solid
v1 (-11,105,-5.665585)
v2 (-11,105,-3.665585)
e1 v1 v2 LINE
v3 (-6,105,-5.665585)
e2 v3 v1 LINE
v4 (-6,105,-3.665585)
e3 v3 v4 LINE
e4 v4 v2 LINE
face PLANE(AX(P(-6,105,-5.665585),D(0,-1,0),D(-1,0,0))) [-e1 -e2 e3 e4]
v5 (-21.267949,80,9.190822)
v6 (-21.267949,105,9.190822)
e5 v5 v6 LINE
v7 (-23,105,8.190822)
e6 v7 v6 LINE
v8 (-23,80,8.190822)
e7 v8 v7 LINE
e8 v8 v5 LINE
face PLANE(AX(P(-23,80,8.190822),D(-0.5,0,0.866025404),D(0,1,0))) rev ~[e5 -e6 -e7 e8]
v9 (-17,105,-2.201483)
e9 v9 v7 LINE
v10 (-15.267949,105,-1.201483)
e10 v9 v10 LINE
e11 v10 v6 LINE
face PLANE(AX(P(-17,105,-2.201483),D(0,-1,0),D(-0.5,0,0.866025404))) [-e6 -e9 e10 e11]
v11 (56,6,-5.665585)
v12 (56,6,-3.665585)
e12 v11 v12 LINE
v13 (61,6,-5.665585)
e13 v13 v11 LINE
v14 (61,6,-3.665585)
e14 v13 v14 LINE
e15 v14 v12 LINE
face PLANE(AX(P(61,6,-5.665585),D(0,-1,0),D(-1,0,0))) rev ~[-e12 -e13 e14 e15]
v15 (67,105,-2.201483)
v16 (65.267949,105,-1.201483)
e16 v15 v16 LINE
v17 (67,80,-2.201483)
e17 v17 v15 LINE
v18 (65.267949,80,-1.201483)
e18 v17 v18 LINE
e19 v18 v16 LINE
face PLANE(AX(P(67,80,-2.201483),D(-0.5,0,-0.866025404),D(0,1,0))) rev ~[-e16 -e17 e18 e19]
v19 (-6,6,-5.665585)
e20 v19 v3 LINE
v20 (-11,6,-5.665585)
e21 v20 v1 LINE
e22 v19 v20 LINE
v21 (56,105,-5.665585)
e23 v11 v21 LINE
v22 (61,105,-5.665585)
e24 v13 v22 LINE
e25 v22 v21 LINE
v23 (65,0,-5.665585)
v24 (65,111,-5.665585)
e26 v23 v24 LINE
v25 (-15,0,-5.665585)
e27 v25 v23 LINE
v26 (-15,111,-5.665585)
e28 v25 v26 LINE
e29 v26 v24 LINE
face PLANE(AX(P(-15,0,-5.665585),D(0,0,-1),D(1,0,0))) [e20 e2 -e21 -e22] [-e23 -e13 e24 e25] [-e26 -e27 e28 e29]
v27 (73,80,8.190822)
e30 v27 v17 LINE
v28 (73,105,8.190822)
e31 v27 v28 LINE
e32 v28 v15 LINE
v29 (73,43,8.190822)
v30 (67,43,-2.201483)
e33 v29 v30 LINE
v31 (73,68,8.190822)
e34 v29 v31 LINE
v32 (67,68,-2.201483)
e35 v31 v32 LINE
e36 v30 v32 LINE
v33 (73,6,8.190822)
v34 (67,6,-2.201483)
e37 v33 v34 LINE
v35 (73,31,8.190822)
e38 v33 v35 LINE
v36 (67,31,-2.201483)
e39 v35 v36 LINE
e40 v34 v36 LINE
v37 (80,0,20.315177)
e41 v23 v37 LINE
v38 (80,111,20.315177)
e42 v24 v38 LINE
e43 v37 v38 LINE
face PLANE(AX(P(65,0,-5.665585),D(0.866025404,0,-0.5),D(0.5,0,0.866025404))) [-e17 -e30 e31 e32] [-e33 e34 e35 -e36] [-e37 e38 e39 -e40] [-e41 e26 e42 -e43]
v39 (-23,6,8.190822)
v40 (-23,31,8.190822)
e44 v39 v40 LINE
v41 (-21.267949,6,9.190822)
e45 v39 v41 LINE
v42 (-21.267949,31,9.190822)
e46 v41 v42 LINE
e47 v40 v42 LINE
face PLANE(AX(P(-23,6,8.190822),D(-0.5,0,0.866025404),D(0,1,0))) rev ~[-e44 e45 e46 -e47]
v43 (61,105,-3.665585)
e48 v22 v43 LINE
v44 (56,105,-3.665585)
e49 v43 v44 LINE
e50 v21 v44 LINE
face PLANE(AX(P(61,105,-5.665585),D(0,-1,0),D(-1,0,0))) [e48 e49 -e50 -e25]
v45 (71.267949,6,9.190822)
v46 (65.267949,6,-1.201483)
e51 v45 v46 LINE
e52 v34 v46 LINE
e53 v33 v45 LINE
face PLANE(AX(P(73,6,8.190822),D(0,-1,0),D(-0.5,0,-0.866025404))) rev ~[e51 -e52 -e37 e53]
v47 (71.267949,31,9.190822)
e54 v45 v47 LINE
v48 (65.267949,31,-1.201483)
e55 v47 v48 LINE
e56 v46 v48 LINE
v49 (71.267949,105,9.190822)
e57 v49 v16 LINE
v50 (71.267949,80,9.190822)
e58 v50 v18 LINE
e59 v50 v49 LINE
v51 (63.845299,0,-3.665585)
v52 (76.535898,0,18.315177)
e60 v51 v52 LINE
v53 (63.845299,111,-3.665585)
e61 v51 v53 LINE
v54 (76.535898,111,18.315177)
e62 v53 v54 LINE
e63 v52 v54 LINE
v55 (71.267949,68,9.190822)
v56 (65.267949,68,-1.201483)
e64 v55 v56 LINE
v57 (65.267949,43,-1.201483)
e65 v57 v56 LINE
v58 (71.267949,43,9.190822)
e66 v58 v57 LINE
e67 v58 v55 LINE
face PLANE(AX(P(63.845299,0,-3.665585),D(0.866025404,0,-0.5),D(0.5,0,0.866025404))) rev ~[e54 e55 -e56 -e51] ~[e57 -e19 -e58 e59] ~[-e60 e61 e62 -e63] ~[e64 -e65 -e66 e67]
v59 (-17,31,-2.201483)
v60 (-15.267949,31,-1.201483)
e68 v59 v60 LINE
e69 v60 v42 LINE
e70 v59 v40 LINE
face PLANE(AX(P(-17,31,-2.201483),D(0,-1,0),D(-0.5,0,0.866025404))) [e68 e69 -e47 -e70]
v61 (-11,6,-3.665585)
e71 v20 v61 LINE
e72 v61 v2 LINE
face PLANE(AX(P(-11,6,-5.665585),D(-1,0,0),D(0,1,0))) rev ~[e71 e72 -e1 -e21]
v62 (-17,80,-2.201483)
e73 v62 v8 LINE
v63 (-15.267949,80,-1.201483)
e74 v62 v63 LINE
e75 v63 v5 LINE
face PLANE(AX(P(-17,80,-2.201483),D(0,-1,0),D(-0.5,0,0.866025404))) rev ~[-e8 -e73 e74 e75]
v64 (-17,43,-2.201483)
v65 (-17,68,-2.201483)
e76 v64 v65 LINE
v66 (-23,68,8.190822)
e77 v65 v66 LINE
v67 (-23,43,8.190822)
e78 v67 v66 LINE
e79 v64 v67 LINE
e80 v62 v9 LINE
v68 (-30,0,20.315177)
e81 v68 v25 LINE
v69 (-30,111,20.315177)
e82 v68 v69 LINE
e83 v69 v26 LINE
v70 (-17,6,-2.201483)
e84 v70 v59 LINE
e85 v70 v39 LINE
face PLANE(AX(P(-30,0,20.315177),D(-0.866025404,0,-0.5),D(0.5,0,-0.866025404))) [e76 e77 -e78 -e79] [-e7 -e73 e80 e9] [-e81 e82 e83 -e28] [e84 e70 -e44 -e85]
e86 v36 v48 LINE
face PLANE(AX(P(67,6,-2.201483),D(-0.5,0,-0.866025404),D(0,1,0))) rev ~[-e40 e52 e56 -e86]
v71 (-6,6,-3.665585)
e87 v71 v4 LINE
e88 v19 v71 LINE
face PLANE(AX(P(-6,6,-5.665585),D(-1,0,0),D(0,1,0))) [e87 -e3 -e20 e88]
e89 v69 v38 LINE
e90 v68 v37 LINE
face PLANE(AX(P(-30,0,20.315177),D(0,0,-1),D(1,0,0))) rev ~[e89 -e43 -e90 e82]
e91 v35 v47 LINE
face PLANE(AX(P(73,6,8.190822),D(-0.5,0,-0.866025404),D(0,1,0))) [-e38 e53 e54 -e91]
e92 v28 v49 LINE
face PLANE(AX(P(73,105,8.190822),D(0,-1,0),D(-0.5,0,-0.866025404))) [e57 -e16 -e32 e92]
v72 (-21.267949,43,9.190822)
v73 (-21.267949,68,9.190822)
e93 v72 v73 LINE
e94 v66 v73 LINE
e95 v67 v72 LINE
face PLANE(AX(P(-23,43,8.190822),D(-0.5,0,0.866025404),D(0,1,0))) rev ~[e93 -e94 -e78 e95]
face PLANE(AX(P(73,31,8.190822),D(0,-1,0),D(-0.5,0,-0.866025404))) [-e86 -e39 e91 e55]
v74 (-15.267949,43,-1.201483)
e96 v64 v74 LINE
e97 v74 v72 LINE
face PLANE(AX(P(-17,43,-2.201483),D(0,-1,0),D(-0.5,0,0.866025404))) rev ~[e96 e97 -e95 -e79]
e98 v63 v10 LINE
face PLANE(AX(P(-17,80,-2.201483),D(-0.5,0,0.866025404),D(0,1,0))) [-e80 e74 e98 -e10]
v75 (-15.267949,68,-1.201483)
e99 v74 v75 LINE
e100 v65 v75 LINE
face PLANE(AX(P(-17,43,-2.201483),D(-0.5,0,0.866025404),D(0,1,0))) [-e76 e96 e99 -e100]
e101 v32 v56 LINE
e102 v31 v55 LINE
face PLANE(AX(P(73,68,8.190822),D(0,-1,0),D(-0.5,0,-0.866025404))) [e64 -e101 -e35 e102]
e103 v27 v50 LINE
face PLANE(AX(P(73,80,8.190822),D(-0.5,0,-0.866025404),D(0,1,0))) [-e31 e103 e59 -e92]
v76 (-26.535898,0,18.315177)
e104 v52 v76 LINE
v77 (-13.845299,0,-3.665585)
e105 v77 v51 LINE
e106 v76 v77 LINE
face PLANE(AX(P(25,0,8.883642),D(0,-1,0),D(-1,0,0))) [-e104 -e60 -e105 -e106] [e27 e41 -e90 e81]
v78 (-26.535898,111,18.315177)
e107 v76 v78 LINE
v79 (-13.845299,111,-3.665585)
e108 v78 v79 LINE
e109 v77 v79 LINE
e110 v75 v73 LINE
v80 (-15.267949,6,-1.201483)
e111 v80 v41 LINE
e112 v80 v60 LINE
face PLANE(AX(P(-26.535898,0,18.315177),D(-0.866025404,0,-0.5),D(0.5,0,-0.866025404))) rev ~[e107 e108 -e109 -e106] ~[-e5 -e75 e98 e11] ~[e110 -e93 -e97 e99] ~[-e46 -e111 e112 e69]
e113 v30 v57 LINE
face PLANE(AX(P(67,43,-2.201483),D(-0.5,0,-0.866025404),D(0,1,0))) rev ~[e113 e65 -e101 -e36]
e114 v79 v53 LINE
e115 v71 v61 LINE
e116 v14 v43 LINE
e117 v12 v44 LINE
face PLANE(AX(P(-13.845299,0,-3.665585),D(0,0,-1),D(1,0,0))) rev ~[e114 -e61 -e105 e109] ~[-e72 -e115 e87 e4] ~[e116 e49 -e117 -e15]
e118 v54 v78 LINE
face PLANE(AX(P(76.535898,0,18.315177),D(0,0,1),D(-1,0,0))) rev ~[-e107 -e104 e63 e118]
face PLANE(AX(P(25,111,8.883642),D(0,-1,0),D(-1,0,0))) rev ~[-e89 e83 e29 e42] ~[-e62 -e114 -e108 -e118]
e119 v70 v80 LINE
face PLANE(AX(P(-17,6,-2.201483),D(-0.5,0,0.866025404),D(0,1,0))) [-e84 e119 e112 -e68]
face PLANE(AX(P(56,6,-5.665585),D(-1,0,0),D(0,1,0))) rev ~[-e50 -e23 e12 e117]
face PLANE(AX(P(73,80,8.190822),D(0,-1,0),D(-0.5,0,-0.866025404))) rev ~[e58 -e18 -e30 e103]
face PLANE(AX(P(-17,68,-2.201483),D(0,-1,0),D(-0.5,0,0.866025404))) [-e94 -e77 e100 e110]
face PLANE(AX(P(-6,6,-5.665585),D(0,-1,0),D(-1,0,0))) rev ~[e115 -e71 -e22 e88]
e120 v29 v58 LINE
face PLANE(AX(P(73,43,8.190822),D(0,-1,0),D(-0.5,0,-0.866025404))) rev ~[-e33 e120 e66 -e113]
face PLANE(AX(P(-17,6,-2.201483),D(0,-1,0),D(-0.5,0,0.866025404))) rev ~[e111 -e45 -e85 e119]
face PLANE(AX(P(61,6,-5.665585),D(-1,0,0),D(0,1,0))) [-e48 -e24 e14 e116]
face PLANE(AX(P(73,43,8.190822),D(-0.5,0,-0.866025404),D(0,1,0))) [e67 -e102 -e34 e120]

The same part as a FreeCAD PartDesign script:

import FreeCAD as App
import Part
import Sketcher

V = App.Vector
Q = App.Units.Quantity

doc = App.newDocument("Part")
body = doc.addObject("PartDesign::Body", "Body")

sketch1 = body.newObject("Sketcher::SketchObject", "Sketch")
sketch1.AttachmentSupport = (doc.getObject("XZ_Plane"), [""])
sketch1.MapMode = "FlatFace"
sketch1.addGeometry(Part.LineSegment(V(65, -6, 0), V(-15, -6, 0)), False)
sketch1.addGeometry(Part.LineSegment(V(-15, -6, 0), V(-30, 20, 0)), False)
sketch1.addGeometry(Part.LineSegment(V(-30, 20, 0), V(80, 20, 0)), False)
sketch1.addGeometry(Part.LineSegment(V(80, 20, 0), V(65, -6, 0)), False)
sketch1.addGeometry(Part.LineSegment(V(-14, -4, 0), V(64, -4, 0)), False)
sketch1.addGeometry(Part.LineSegment(V(64, -4, 0), V(77, 18, 0)), False)
sketch1.addGeometry(Part.LineSegment(V(77, 18, 0), V(-27, 18, 0)), False)
sketch1.addGeometry(Part.LineSegment(V(-27, 18, 0), V(-14, -4, 0)), False)
sketch1.addConstraint(Sketcher.Constraint("Coincident", 0, 2, 1, 1))
sketch1.addConstraint(Sketcher.Constraint("Coincident", 1, 2, 2, 1))
sketch1.addConstraint(Sketcher.Constraint("Coincident", 2, 2, 3, 1))
sketch1.addConstraint(Sketcher.Constraint("Coincident", 3, 2, 0, 1))
sketch1.addConstraint(Sketcher.Constraint("Coincident", 4, 2, 5, 1))
sketch1.addConstraint(Sketcher.Constraint("Coincident", 5, 2, 6, 1))
sketch1.addConstraint(Sketcher.Constraint("Coincident", 6, 2, 7, 1))
sketch1.addConstraint(Sketcher.Constraint("Coincident", 7, 2, 4, 1))
sketch1.addConstraint(Sketcher.Constraint("Horizontal", 0))
sketch1.addConstraint(Sketcher.Constraint("Horizontal", 2))
sketch1.addConstraint(Sketcher.Constraint("Horizontal", 4))
sketch1.addConstraint(Sketcher.Constraint("Horizontal", 6))
sketch1.addConstraint(Sketcher.Constraint("Parallel", 3, 5))
sketch1.addConstraint(Sketcher.Constraint("Parallel", 1, 7))
sketch1.addConstraint(Sketcher.Constraint("Equal", 1, 3))
sketch1.addConstraint(Sketcher.Constraint("DistanceX", 0, 2, 0, 1, 80.0))
sketch1.addConstraint(Sketcher.Constraint("DistanceX", 2, 1, 2, 2, 110.0))
sketch1.addConstraint(Sketcher.Constraint("Angle", 1, Q("120 deg")))
sketch1.addConstraint(Sketcher.Constraint("DistanceX", 0, 2, -1, 1, 15.0))
sketch1.addConstraint(Sketcher.Constraint("DistanceY", 3, 2, 4, 2, 2.0))
sketch1.addConstraint(Sketcher.Constraint("DistanceY", 5, 2, 2, 2, 2.0))
sketch1.addConstraint(Sketcher.Constraint("DistanceX", 4, 1, 4, 2, 77.690599))
sketch1.addConstraint(Sketcher.Constraint("DistanceX", -1, 1, 4, 2, 63.845299))
sketch1.addConstraint(Sketcher.Constraint("DistanceY", 0, 2, -1, 1, 5.665585))
pad1 = body.newObject("PartDesign::Pad", "Pad")
pad1.Profile = sketch1
pad1.Length = 111
pad1.Reversed = True

sketch2 = body.newObject("Sketcher::SketchObject", "Sketch001")
sketch2.Placement = App.Placement(V(51.20327, 0, -29.562222), App.Rotation(V(-0.5, 0, -0.866025404), V(0, 1, 0), V(0.866025404, 0, -0.5), "ZXY"))
sketch2.addGeometry(Part.LineSegment(V(-44, 105, 0), V(-44, 80, 0)), False)
sketch2.addGeometry(Part.LineSegment(V(-44, 80, 0), V(-32, 80, 0)), False)
sketch2.addGeometry(Part.LineSegment(V(-32, 80, 0), V(-32, 105, 0)), False)
sketch2.addGeometry(Part.LineSegment(V(-32, 105, 0), V(-44, 105, 0)), False)
sketch2.addGeometry(Part.LineSegment(V(-44, 68, 0), V(-44, 43, 0)), False)
sketch2.addGeometry(Part.LineSegment(V(-44, 43, 0), V(-32, 43, 0)), False)
sketch2.addGeometry(Part.LineSegment(V(-32, 43, 0), V(-32, 68, 0)), False)
sketch2.addGeometry(Part.LineSegment(V(-32, 68, 0), V(-44, 68, 0)), False)
sketch2.addGeometry(Part.LineSegment(V(-44, 31, 0), V(-44, 6, 0)), False)
sketch2.addGeometry(Part.LineSegment(V(-44, 6, 0), V(-32, 6, 0)), False)
sketch2.addGeometry(Part.LineSegment(V(-32, 6, 0), V(-32, 31, 0)), False)
sketch2.addGeometry(Part.LineSegment(V(-32, 31, 0), V(-44, 31, 0)), False)
sketch2.addConstraint(Sketcher.Constraint("Coincident", 0, 2, 1, 1))
sketch2.addConstraint(Sketcher.Constraint("Coincident", 1, 2, 2, 1))
sketch2.addConstraint(Sketcher.Constraint("Coincident", 2, 2, 3, 1))
sketch2.addConstraint(Sketcher.Constraint("Coincident", 3, 2, 0, 1))
sketch2.addConstraint(Sketcher.Constraint("Coincident", 4, 2, 5, 1))
sketch2.addConstraint(Sketcher.Constraint("Coincident", 5, 2, 6, 1))
sketch2.addConstraint(Sketcher.Constraint("Coincident", 6, 2, 7, 1))
sketch2.addConstraint(Sketcher.Constraint("Coincident", 7, 2, 4, 1))
sketch2.addConstraint(Sketcher.Constraint("Coincident", 8, 2, 9, 1))
sketch2.addConstraint(Sketcher.Constraint("Coincident", 9, 2, 10, 1))
sketch2.addConstraint(Sketcher.Constraint("Coincident", 10, 2, 11, 1))
sketch2.addConstraint(Sketcher.Constraint("Coincident", 11, 2, 8, 1))
sketch2.addConstraint(Sketcher.Constraint("Vertical", 0))
sketch2.addConstraint(Sketcher.Constraint("Horizontal", 1))
sketch2.addConstraint(Sketcher.Constraint("Vertical", 2))
sketch2.addConstraint(Sketcher.Constraint("Horizontal", 3))
sketch2.addConstraint(Sketcher.Constraint("Vertical", 4))
sketch2.addConstraint(Sketcher.Constraint("Horizontal", 5))
sketch2.addConstraint(Sketcher.Constraint("Vertical", 6))
sketch2.addConstraint(Sketcher.Constraint("Horizontal", 7))
sketch2.addConstraint(Sketcher.Constraint("Vertical", 8))
sketch2.addConstraint(Sketcher.Constraint("Horizontal", 9))
sketch2.addConstraint(Sketcher.Constraint("Vertical", 10))
sketch2.addConstraint(Sketcher.Constraint("Horizontal", 11))
sketch2.addConstraint(Sketcher.Constraint("Vertical", 3, 2, 4, 2))
sketch2.addConstraint(Sketcher.Constraint("Vertical", 2, 2, 5, 2))
sketch2.addConstraint(Sketcher.Constraint("Vertical", 7, 2, 8, 2))
sketch2.addConstraint(Sketcher.Constraint("Vertical", 6, 2, 9, 2))
sketch2.addConstraint(Sketcher.Constraint("Equal", 2, 4))
sketch2.addConstraint(Sketcher.Constraint("Equal", 6, 8))
sketch2.addConstraint(Sketcher.Constraint("DistanceX", 1, 1, 1, 2, 12.0))
sketch2.addConstraint(Sketcher.Constraint("DistanceY", 0, 2, 0, 1, 25.0))
sketch2.addConstraint(Sketcher.Constraint("DistanceY", -1, 1, 0, 2, 80.0))
sketch2.addConstraint(Sketcher.Constraint("DistanceY", -1, 1, 4, 2, 43.0))
sketch2.addConstraint(Sketcher.Constraint("DistanceY", -1, 1, 8, 2, 6.0))
sketch2.addConstraint(Sketcher.Constraint("DistanceX", 0, 2, -1, 1, 43.59346))
pocket1 = body.newObject("PartDesign::Pocket", "Pocket")
pocket1.Profile = sketch2
pocket1.Length = 2

sketch3 = body.newObject("Sketcher::SketchObject", "Sketch002")
sketch3.Placement = App.Placement(V(-13.70327, 0, -7.911587), App.Rotation(V(-0.5, 0, 0.866025404), V(0, 1, 0), V(-0.866025404, 0, -0.5), "ZXY"))
sketch3.addGeometry(Part.LineSegment(V(7, 105, 0), V(7, 80, 0)), False)
sketch3.addGeometry(Part.LineSegment(V(7, 80, 0), V(19, 80, 0)), False)
sketch3.addGeometry(Part.LineSegment(V(19, 80, 0), V(19, 105, 0)), False)
sketch3.addGeometry(Part.LineSegment(V(19, 105, 0), V(7, 105, 0)), False)
sketch3.addGeometry(Part.LineSegment(V(7, 68, 0), V(7, 43, 0)), False)
sketch3.addGeometry(Part.LineSegment(V(7, 43, 0), V(19, 43, 0)), False)
sketch3.addGeometry(Part.LineSegment(V(19, 43, 0), V(19, 68, 0)), False)
sketch3.addGeometry(Part.LineSegment(V(19, 68, 0), V(7, 68, 0)), False)
sketch3.addGeometry(Part.LineSegment(V(7, 31, 0), V(7, 6, 0)), False)
sketch3.addGeometry(Part.LineSegment(V(7, 6, 0), V(19, 6, 0)), False)
sketch3.addGeometry(Part.LineSegment(V(19, 6, 0), V(19, 31, 0)), False)
sketch3.addGeometry(Part.LineSegment(V(19, 31, 0), V(7, 31, 0)), False)
sketch3.addConstraint(Sketcher.Constraint("Coincident", 0, 2, 1, 1))
sketch3.addConstraint(Sketcher.Constraint("Coincident", 1, 2, 2, 1))
sketch3.addConstraint(Sketcher.Constraint("Coincident", 2, 2, 3, 1))
sketch3.addConstraint(Sketcher.Constraint("Coincident", 3, 2, 0, 1))
sketch3.addConstraint(Sketcher.Constraint("Coincident", 4, 2, 5, 1))
sketch3.addConstraint(Sketcher.Constraint("Coincident", 5, 2, 6, 1))
sketch3.addConstraint(Sketcher.Constraint("Coincident", 6, 2, 7, 1))
sketch3.addConstraint(Sketcher.Constraint("Coincident", 7, 2, 4, 1))
sketch3.addConstraint(Sketcher.Constraint("Coincident", 8, 2, 9, 1))
sketch3.addConstraint(Sketcher.Constraint("Coincident", 9, 2, 10, 1))
sketch3.addConstraint(Sketcher.Constraint("Coincident", 10, 2, 11, 1))
sketch3.addConstraint(Sketcher.Constraint("Coincident", 11, 2, 8, 1))
sketch3.addConstraint(Sketcher.Constraint("Vertical", 0))
sketch3.addConstraint(Sketcher.Constraint("Horizontal", 1))
sketch3.addConstraint(Sketcher.Constraint("Vertical", 2))
sketch3.addConstraint(Sketcher.Constraint("Horizontal", 3))
sketch3.addConstraint(Sketcher.Constraint("Vertical", 4))
sketch3.addConstraint(Sketcher.Constraint("Horizontal", 5))
sketch3.addConstraint(Sketcher.Constraint("Vertical", 6))
sketch3.addConstraint(Sketcher.Constraint("Horizontal", 7))
sketch3.addConstraint(Sketcher.Constraint("Vertical", 8))
sketch3.addConstraint(Sketcher.Constraint("Horizontal", 9))
sketch3.addConstraint(Sketcher.Constraint("Vertical", 10))
sketch3.addConstraint(Sketcher.Constraint("Horizontal", 11))
sketch3.addConstraint(Sketcher.Constraint("Vertical", 3, 2, 4, 2))
sketch3.addConstraint(Sketcher.Constraint("Vertical", 2, 2, 5, 2))
sketch3.addConstraint(Sketcher.Constraint("Vertical", 7, 2, 8, 2))
sketch3.addConstraint(Sketcher.Constraint("Vertical", 6, 2, 9, 2))
sketch3.addConstraint(Sketcher.Constraint("Equal", 2, 4))
sketch3.addConstraint(Sketcher.Constraint("Equal", 6, 8))
sketch3.addConstraint(Sketcher.Constraint("DistanceX", 1, 1, 1, 2, 12.0))
sketch3.addConstraint(Sketcher.Constraint("DistanceY", 0, 2, 0, 1, 25.0))
sketch3.addConstraint(Sketcher.Constraint("DistanceY", -1, 1, 0, 2, 80.0))
sketch3.addConstraint(Sketcher.Constraint("DistanceY", -1, 1, 4, 2, 43.0))
sketch3.addConstraint(Sketcher.Constraint("DistanceY", -1, 1, 8, 2, 6.0))
sketch3.addConstraint(Sketcher.Constraint("DistanceX", -1, 1, 0, 2, 6.59346))
pocket2 = body.newObject("PartDesign::Pocket", "Pocket001")
pocket2.Profile = sketch3
pocket2.Length = 2

sketch4 = body.newObject("Sketcher::SketchObject", "Sketch003")
sketch4.AttachmentSupport = (doc.getObject("XY_Plane"), [""])
sketch4.MapMode = "FlatFace"
sketch4.AttachmentOffset = App.Placement(V(0, 0, -5.665585), App.Rotation())
sketch4.addGeometry(Part.LineSegment(V(61, 105, 0), V(61, 6, 0)), False)
sketch4.addGeometry(Part.LineSegment(V(61, 6, 0), V(56, 6, 0)), False)
sketch4.addGeometry(Part.LineSegment(V(56, 6, 0), V(56, 105, 0)), False)
sketch4.addGeometry(Part.LineSegment(V(56, 105, 0), V(61, 105, 0)), False)
sketch4.addGeometry(Part.LineSegment(V(-6, 105, 0), V(-6, 6, 0)), False)
sketch4.addGeometry(Part.LineSegment(V(-6, 6, 0), V(-11, 6, 0)), False)
sketch4.addGeometry(Part.LineSegment(V(-11, 6, 0), V(-11, 105, 0)), False)
sketch4.addGeometry(Part.LineSegment(V(-11, 105, 0), V(-6, 105, 0)), False)
sketch4.addConstraint(Sketcher.Constraint("Coincident", 0, 2, 1, 1))
sketch4.addConstraint(Sketcher.Constraint("Coincident", 1, 2, 2, 1))
sketch4.addConstraint(Sketcher.Constraint("Coincident", 2, 2, 3, 1))
sketch4.addConstraint(Sketcher.Constraint("Coincident", 3, 2, 0, 1))
sketch4.addConstraint(Sketcher.Constraint("Coincident", 4, 2, 5, 1))
sketch4.addConstraint(Sketcher.Constraint("Coincident", 5, 2, 6, 1))
sketch4.addConstraint(Sketcher.Constraint("Coincident", 6, 2, 7, 1))
sketch4.addConstraint(Sketcher.Constraint("Coincident", 7, 2, 4, 1))
sketch4.addConstraint(Sketcher.Constraint("Vertical", 0))
sketch4.addConstraint(Sketcher.Constraint("Horizontal", 1))
sketch4.addConstraint(Sketcher.Constraint("Vertical", 2))
sketch4.addConstraint(Sketcher.Constraint("Horizontal", 3))
sketch4.addConstraint(Sketcher.Constraint("Vertical", 4))
sketch4.addConstraint(Sketcher.Constraint("Horizontal", 5))
sketch4.addConstraint(Sketcher.Constraint("Vertical", 6))
sketch4.addConstraint(Sketcher.Constraint("Horizontal", 7))
sketch4.addConstraint(Sketcher.Constraint("Horizontal", 1, 2, 4, 2))
sketch4.addConstraint(Sketcher.Constraint("Horizontal", 3, 2, 6, 2))
sketch4.addConstraint(Sketcher.Constraint("Equal", 3, 5))
sketch4.addConstraint(Sketcher.Constraint("DistanceX", 1, 2, 1, 1, 5.0))
sketch4.addConstraint(Sketcher.Constraint("DistanceY", 0, 2, 0, 1, 99.0))
sketch4.addConstraint(Sketcher.Constraint("DistanceX", -1, 1, 0, 2, 61.0))
sketch4.addConstraint(Sketcher.Constraint("DistanceY", -1, 1, 0, 2, 6.0))
sketch4.addConstraint(Sketcher.Constraint("DistanceX", 4, 2, -1, 1, 6.0))
pocket3 = body.newObject("PartDesign::Pocket", "Pocket002")
pocket3.Profile = sketch4
pocket3.Length = 2
pocket3.Reversed = True

doc.recompute()
